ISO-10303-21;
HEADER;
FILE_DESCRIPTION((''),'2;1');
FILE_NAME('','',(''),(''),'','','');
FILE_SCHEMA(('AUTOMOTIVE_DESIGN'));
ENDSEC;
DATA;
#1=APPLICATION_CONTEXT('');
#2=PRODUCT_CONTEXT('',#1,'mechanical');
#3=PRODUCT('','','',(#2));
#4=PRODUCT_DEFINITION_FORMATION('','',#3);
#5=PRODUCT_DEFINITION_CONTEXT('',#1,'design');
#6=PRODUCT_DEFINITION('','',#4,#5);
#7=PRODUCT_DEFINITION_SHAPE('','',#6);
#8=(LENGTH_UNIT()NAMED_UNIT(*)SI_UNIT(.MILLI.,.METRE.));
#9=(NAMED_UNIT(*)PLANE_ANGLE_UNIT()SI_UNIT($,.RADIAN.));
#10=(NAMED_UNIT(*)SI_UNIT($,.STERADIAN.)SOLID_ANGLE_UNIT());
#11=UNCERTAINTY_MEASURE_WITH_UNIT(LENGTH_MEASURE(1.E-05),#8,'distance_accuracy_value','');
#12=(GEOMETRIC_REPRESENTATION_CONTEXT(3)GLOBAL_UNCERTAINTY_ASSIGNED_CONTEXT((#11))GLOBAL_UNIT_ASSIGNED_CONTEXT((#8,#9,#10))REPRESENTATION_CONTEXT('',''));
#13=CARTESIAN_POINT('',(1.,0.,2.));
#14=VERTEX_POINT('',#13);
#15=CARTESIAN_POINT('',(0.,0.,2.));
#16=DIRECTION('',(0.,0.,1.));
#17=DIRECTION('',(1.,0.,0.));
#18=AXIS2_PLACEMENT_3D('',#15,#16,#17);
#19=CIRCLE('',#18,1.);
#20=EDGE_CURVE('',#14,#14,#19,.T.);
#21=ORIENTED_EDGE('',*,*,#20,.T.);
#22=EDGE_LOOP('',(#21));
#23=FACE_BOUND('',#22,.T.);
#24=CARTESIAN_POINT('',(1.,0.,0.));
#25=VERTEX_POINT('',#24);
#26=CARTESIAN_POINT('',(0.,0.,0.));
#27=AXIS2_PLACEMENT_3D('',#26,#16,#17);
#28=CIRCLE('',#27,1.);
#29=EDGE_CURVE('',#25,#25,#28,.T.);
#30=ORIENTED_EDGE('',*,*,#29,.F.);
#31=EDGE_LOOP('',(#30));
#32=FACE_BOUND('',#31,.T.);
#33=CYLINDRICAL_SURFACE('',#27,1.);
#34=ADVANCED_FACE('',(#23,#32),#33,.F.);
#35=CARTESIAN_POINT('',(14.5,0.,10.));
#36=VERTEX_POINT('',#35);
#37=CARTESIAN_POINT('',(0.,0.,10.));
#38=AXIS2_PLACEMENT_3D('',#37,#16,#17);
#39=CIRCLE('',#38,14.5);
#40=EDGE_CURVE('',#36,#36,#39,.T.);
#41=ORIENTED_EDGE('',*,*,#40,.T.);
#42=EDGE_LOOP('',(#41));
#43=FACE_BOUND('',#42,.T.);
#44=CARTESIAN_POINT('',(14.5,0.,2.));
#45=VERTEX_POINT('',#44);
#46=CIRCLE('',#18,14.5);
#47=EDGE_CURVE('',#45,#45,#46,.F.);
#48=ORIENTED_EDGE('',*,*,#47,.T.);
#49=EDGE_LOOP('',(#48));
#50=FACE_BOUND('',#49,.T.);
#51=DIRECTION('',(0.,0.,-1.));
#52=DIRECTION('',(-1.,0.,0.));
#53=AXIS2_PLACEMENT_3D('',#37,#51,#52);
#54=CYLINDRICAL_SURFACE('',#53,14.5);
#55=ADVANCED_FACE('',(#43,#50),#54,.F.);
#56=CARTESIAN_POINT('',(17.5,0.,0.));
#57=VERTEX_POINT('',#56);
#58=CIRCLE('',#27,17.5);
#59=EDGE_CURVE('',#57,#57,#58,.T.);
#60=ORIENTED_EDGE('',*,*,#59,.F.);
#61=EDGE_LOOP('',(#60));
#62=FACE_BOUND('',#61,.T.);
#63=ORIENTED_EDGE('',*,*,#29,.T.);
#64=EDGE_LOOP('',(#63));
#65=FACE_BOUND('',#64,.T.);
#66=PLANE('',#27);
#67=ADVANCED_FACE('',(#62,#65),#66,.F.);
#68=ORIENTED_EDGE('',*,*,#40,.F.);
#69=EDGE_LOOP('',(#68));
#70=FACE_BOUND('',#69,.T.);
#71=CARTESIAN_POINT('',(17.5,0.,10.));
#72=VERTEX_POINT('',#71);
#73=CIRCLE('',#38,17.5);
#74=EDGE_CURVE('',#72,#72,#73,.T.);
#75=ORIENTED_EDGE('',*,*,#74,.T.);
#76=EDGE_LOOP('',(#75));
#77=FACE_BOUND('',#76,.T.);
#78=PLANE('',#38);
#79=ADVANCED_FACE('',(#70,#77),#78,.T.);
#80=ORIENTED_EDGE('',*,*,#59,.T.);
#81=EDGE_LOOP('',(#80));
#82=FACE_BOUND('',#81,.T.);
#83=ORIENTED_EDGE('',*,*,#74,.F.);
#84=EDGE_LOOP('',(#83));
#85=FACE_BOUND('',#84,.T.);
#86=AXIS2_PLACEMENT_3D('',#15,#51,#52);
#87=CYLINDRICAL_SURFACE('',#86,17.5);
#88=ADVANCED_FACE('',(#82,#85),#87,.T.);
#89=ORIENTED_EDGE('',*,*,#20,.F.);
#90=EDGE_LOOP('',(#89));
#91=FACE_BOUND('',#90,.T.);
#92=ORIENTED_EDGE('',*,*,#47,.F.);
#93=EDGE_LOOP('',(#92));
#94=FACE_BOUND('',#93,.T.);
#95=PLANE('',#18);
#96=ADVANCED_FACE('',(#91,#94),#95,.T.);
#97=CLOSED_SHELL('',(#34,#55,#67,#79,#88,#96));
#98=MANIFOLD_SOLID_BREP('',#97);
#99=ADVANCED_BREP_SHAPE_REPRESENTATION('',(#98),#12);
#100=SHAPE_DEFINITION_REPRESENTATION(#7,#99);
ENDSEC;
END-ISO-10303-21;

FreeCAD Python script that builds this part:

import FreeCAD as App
import Part
import Sketcher

V = App.Vector

doc = App.newDocument("Part")
body = doc.addObject("PartDesign::Body", "Body")

sketch1 = body.newObject("Sketcher::SketchObject", "Sketch")
sketch1.AttachmentSupport = (doc.getObject("XY_Plane"), [""])
sketch1.MapMode = "FlatFace"
sketch1.addGeometry(Part.Circle(V(0, 0, 0), V(0, 0, 1), 17.5), False)
sketch1.addConstraint([
    Sketcher.Constraint("Coincident", 0, 3, -1, 1),
    Sketcher.Constraint("Diameter", 0, 35.0),
])
pad1 = body.newObject("PartDesign::Pad", "Pad")
pad1.Profile = sketch1
pad1.Length = 2

sketch2 = body.newObject("Sketcher::SketchObject", "Sketch001")
sketch2.AttachmentSupport = (doc.getObject("XY_Plane"), [""])
sketch2.MapMode = "FlatFace"
sketch2.AttachmentOffset = App.Placement(V(0, 0, 2), App.Rotation())
sketch2.addGeometry([
    Part.Circle(V(0, 0, 0), V(0, 0, 1), 17.5),
    Part.Circle(V(0, 0, 0), V(0, 0, 1), 14.5),
], False)
sketch2.addConstraint([
    Sketcher.Constraint("Coincident", 0, 3, -1, 1),
    Sketcher.Constraint("Coincident", 1, 3, -1, 1),
    Sketcher.Constraint("Diameter", 0, 35.0),
    Sketcher.Constraint("Diameter", 1, 29.0),
])
pad2 = body.newObject("PartDesign::Pad", "Pad001")
pad2.Profile = sketch2
pad2.Length = 8

sketch3 = body.newObject("Sketcher::SketchObject", "Sketch002")
sketch3.AttachmentSupport = (doc.getObject("XY_Plane"), [""])
sketch3.MapMode = "FlatFace"
sketch3.AttachmentOffset = App.Placement(V(0, 0, 2), App.Rotation())
sketch3.addGeometry(Part.Circle(V(0, 0, 0), V(0, 0, 1), 1), False)
sketch3.addConstraint([
    Sketcher.Constraint("Coincident", 0, 3, -1, 1),
    Sketcher.Constraint("Diameter", 0, 2.0),
])
pocket1 = body.newObject("PartDesign::Pocket", "Pocket")
pocket1.Profile = sketch3
pocket1.Type = "ThroughAll"

doc.recompute()
